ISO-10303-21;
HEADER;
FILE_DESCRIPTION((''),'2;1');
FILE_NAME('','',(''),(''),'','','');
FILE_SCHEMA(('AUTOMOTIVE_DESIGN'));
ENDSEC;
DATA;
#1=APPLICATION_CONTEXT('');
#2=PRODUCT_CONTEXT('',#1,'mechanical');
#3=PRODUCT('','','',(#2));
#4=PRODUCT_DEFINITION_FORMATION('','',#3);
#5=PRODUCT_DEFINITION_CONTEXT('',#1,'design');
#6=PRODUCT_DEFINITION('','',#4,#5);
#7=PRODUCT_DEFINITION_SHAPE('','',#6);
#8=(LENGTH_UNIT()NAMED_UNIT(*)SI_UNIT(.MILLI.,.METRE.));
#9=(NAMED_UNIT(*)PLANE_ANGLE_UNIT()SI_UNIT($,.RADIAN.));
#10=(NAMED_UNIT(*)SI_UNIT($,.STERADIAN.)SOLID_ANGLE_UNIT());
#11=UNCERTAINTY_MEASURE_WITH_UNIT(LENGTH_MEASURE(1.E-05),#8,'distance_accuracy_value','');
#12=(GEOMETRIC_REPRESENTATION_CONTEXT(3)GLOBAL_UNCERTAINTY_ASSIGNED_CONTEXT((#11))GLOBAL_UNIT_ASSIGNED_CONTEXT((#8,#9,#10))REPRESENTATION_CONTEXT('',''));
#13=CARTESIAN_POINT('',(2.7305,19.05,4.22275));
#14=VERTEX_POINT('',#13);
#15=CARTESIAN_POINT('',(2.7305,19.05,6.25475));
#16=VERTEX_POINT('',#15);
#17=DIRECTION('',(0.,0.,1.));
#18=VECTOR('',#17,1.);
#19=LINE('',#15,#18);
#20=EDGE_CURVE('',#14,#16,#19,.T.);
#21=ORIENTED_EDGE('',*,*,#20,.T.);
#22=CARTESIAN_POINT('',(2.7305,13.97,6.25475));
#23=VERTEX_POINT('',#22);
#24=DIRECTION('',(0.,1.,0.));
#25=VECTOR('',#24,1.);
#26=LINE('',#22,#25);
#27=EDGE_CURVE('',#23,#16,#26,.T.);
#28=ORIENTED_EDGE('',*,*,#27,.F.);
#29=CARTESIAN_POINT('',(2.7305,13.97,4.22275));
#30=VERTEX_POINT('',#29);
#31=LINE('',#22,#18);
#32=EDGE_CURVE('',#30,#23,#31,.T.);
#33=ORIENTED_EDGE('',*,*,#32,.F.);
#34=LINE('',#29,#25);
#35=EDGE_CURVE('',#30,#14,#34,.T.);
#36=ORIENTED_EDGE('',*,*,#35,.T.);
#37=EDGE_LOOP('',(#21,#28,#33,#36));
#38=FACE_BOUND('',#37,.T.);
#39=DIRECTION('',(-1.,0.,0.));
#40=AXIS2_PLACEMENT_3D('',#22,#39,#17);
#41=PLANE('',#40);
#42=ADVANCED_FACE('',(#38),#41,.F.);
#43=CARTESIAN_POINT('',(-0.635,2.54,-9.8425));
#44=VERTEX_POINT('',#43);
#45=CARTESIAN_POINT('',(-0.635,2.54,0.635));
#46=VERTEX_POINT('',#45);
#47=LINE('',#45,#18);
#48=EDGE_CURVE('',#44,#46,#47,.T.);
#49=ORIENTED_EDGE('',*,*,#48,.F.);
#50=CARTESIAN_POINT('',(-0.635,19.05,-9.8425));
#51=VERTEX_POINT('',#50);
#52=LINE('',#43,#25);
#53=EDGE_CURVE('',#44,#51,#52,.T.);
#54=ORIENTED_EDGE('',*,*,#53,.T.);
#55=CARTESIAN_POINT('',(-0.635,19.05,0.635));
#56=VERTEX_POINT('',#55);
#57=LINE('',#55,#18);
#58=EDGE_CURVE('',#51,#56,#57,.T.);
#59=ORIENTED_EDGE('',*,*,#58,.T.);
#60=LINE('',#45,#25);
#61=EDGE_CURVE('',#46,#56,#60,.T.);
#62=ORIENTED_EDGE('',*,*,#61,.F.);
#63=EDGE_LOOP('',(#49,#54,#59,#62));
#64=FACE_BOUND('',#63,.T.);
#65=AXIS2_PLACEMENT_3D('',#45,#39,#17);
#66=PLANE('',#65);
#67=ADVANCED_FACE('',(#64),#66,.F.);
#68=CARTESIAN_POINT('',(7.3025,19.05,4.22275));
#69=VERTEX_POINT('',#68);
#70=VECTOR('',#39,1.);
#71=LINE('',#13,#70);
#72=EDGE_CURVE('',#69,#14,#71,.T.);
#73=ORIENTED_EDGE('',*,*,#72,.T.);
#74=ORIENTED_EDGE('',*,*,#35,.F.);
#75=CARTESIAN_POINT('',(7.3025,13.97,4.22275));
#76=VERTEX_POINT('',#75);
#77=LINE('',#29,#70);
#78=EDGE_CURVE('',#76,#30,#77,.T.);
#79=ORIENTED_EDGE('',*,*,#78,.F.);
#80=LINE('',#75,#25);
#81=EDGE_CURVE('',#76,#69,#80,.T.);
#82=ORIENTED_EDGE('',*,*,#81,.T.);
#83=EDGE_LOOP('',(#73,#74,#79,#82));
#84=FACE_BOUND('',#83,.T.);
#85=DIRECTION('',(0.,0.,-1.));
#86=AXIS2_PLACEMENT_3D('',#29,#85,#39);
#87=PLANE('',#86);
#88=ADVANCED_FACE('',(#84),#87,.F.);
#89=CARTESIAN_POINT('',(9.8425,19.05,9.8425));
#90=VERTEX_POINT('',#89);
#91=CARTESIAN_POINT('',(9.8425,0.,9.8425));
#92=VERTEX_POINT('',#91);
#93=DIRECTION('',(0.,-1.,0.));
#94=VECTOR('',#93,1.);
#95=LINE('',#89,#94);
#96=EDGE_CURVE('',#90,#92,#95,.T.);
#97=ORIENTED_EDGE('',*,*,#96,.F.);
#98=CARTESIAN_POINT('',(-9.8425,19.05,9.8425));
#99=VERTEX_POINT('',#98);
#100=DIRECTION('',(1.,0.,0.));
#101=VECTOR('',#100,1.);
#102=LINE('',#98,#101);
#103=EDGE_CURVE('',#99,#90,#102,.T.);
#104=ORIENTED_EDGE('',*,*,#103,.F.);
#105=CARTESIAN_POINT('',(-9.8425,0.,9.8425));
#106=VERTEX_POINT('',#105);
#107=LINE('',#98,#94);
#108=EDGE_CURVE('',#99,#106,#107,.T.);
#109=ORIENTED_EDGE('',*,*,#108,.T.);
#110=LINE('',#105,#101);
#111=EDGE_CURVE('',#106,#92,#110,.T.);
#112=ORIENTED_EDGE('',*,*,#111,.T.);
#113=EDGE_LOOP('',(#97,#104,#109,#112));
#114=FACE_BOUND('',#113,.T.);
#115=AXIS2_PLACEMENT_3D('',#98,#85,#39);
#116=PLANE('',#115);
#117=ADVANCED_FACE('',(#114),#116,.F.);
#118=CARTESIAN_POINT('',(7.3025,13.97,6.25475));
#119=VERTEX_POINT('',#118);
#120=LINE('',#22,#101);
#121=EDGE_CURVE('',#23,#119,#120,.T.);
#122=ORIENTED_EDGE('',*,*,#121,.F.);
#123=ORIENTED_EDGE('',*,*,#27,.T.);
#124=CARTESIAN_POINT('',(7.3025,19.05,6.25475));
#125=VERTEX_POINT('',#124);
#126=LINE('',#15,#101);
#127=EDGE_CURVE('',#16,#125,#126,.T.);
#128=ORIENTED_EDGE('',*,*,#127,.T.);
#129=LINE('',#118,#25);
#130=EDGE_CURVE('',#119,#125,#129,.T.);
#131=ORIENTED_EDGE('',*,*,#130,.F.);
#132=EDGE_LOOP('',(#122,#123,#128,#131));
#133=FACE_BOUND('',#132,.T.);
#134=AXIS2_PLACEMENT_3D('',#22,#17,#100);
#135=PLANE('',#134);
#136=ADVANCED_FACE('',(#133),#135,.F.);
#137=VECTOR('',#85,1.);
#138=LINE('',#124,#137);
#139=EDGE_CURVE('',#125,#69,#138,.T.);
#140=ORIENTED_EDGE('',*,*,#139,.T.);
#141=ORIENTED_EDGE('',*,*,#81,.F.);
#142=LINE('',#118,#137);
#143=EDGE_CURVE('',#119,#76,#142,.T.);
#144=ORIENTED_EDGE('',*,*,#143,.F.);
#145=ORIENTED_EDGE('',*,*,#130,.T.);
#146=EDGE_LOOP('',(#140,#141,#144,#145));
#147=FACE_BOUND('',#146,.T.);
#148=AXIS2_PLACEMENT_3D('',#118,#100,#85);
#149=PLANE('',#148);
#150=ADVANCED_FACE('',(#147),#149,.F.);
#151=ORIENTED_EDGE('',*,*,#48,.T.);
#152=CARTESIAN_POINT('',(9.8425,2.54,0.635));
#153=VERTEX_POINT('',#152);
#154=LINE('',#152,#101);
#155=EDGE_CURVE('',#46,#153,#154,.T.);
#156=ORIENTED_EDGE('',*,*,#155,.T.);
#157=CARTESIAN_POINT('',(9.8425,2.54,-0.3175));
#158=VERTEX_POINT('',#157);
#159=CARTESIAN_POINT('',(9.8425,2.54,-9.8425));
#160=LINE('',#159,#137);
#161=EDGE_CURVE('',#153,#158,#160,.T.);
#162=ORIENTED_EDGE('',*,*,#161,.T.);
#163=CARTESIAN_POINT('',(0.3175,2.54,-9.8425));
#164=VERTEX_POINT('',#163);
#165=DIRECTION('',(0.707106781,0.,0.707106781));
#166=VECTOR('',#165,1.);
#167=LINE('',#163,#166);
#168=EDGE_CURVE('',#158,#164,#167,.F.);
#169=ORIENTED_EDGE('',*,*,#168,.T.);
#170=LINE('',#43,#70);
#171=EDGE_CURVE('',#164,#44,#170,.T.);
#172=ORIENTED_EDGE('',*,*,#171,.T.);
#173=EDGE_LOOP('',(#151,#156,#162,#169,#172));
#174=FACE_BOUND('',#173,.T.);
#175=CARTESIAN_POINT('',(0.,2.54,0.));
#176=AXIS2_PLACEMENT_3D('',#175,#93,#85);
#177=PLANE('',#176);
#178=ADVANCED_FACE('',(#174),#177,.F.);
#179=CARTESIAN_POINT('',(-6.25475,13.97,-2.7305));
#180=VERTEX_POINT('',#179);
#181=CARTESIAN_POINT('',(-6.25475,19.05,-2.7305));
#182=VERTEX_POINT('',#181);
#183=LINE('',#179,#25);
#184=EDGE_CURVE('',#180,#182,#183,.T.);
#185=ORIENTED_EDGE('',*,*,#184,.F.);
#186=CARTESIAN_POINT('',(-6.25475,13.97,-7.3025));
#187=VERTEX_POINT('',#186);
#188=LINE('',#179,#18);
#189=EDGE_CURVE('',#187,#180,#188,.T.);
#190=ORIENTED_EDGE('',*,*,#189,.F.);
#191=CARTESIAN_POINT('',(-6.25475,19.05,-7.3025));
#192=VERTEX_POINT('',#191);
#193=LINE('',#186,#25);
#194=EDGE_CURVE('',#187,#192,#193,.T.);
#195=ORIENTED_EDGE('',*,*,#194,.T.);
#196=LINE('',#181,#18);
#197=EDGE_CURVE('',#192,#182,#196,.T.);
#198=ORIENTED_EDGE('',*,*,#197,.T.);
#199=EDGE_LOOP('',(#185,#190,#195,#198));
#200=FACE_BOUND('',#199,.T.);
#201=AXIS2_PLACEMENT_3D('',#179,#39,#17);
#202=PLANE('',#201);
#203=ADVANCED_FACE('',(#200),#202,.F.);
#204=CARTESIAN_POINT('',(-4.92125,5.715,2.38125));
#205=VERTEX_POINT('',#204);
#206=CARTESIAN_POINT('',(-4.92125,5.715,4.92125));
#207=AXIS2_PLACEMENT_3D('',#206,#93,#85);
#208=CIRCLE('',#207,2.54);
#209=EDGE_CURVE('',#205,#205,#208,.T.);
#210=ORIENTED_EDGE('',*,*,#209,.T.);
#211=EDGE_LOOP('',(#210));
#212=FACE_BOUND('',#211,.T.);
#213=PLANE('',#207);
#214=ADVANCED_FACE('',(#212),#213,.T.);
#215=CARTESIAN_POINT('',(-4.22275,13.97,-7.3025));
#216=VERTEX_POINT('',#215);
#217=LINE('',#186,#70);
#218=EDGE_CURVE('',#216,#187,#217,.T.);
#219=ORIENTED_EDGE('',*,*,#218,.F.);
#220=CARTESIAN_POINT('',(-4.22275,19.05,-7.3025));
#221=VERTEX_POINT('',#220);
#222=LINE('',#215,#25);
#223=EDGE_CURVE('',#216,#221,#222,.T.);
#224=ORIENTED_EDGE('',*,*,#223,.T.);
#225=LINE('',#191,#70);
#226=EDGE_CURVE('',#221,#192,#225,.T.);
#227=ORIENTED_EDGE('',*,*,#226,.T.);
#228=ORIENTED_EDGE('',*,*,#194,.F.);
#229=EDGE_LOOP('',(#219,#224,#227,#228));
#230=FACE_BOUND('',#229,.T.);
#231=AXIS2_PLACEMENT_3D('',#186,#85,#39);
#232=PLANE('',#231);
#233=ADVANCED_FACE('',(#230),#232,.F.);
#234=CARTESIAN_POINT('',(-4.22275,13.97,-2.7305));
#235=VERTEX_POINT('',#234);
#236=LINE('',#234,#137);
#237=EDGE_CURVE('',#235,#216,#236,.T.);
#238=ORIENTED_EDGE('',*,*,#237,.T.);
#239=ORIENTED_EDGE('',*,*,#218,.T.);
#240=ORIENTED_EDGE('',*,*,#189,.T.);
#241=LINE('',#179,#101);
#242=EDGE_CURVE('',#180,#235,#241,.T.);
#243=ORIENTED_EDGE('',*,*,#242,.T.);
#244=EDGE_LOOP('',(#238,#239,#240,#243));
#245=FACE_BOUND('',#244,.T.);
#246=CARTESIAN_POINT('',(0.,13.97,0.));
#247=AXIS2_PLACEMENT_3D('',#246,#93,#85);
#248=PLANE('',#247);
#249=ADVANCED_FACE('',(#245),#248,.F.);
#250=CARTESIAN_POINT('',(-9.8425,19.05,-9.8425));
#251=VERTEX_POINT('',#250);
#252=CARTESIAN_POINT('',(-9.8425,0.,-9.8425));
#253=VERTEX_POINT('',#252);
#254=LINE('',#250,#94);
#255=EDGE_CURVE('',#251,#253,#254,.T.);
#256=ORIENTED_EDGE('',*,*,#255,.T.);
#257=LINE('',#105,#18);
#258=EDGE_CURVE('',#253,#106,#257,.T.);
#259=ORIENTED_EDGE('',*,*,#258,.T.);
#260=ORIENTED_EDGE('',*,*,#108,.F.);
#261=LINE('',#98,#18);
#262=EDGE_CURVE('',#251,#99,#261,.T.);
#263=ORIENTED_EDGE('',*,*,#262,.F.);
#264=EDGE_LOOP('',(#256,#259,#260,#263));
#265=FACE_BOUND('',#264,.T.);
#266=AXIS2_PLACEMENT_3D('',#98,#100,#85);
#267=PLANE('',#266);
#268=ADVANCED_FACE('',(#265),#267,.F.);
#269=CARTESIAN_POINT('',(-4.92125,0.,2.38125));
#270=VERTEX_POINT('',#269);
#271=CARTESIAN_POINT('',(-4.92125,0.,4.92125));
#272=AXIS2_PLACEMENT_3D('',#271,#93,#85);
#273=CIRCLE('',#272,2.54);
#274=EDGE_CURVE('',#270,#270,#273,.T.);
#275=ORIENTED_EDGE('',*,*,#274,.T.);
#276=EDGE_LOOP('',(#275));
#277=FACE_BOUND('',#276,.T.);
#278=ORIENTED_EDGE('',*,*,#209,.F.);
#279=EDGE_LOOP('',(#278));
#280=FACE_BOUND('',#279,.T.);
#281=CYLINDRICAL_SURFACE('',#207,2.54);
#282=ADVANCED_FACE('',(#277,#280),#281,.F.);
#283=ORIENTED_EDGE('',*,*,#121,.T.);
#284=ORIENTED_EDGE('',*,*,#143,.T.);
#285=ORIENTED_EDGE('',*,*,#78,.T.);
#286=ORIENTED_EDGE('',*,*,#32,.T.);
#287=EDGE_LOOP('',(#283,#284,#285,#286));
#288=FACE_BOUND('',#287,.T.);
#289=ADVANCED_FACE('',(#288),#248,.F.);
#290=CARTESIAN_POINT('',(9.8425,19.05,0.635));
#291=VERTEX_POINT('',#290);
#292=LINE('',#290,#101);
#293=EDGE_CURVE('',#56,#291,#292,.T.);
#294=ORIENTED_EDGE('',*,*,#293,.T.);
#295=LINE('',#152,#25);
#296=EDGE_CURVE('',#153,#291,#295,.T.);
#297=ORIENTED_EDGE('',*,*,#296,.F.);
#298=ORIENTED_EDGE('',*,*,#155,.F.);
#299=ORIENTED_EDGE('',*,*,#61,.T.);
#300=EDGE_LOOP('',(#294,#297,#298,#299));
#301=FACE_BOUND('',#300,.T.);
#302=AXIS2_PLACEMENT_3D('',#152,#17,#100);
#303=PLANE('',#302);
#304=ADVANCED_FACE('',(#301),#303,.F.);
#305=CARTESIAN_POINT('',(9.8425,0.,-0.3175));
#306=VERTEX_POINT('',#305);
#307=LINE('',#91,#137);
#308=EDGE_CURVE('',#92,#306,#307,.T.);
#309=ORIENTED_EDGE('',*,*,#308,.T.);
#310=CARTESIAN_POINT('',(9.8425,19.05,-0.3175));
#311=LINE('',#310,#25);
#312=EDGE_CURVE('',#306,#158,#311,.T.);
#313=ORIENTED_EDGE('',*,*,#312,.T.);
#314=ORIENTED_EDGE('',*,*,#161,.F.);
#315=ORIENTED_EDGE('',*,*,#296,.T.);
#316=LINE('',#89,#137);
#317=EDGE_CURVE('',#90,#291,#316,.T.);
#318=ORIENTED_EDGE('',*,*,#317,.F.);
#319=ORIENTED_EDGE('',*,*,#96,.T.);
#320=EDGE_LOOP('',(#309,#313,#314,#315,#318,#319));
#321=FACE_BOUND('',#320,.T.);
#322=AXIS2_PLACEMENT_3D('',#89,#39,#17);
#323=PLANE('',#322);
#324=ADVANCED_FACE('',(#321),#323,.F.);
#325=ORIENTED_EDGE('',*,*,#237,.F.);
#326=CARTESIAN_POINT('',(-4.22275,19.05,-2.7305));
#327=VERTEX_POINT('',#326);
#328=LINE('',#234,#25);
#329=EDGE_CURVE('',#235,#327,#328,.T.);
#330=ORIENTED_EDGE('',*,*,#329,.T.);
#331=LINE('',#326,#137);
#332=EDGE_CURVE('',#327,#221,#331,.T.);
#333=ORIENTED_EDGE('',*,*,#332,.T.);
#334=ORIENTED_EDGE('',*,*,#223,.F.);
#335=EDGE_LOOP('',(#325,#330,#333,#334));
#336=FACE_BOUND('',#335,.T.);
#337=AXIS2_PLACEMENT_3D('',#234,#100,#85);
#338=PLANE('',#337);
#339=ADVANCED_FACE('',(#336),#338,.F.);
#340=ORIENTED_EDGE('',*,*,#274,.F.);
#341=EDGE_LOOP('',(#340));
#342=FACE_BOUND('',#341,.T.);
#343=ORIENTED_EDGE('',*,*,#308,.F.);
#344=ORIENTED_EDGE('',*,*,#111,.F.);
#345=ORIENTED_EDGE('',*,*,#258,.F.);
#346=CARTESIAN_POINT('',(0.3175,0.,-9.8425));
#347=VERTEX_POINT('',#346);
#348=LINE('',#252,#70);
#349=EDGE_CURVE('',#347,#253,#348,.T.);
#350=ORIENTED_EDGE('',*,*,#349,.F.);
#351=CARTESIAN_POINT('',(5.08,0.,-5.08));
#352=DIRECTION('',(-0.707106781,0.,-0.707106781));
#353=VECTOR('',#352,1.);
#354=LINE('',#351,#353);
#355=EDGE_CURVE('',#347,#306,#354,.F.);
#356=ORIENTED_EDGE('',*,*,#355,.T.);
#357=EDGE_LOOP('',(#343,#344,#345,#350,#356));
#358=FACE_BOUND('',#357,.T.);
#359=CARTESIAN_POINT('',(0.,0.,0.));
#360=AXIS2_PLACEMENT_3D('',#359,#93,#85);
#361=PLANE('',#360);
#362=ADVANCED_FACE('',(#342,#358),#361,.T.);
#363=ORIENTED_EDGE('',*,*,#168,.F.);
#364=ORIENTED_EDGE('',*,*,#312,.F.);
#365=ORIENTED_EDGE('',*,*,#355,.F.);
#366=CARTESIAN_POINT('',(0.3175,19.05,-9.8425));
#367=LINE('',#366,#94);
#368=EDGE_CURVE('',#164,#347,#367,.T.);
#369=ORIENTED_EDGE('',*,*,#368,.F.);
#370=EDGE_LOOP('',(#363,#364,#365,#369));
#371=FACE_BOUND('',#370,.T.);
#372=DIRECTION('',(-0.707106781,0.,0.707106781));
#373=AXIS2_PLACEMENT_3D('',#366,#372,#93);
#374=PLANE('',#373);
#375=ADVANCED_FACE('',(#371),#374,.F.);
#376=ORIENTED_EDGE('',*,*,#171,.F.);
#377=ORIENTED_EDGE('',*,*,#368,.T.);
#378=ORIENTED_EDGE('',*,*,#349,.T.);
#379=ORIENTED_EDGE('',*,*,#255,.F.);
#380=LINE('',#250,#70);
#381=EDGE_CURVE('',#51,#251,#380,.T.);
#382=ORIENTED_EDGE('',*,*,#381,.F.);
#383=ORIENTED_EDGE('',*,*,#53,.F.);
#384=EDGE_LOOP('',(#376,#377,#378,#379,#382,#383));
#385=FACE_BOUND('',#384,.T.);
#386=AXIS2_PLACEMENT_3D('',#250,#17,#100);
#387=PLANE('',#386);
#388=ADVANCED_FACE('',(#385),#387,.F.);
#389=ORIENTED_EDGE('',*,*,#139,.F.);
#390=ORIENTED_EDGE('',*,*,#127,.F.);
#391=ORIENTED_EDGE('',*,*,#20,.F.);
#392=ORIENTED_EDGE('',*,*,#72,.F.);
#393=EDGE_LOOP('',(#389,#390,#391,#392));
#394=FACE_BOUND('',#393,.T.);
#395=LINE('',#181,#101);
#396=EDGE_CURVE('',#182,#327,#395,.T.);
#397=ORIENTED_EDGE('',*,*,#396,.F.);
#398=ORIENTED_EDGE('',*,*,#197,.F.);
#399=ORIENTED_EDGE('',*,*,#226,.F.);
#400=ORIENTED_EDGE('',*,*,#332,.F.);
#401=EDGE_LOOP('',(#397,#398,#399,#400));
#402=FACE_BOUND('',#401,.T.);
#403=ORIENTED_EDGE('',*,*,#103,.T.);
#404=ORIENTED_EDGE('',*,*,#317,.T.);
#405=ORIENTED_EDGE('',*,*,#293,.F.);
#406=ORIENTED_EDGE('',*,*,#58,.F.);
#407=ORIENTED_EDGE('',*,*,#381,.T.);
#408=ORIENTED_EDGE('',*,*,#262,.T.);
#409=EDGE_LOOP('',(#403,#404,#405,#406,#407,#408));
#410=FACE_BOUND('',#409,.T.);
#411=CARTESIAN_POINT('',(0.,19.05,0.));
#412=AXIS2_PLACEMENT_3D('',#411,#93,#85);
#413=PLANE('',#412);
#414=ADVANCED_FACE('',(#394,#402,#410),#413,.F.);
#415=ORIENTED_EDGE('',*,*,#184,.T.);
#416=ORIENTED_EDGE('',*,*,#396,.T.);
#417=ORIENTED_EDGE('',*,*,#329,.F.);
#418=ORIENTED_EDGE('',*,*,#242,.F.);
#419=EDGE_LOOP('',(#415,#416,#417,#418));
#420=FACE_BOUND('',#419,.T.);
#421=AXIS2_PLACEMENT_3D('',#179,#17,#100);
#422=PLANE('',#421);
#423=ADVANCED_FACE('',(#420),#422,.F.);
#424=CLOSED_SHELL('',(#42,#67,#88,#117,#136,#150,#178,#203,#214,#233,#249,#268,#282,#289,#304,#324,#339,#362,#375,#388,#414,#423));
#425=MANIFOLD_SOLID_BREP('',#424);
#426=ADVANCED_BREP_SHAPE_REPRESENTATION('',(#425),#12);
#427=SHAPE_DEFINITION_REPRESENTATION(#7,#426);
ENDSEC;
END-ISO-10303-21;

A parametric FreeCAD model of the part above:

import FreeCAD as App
import Part
import Sketcher
Q = App.Units.Quantity


def edges_at(feature, points):
    """Names of the edges that pass closest to the given points."""
    edges = feature.Shape.Edges
    near = lambda p: min(range(len(edges)), key=lambda i: edges[i].distToShape(Part.Vertex(*p))[0])
    return sorted({f"Edge{near(p) + 1}" for p in points})

doc = App.newDocument("Part")
body = doc.addObject("PartDesign::Body", "Body")

# Sketch on XZ plane
sketch1 = body.newObject("Sketcher::SketchObject", "Sketch")
sketch1.AttachmentSupport = (doc.getObject("XZ_Plane"), [""])
sketch1.MapMode = "FlatFace"
sketch1.addGeometry(Part.LineSegment(App.Vector(-10, -10, 0), App.Vector(-10, 10, 0)), False)
sketch1.addGeometry(Part.LineSegment(App.Vector(-10, 10, 0), App.Vector(10, 10, 0)), False)
sketch1.addGeometry(Part.LineSegment(App.Vector(10, 10, 0), App.Vector(10, -10, 0)), False)
sketch1.addGeometry(Part.LineSegment(App.Vector(10, -10, 0), App.Vector(-10, -10, 0)), False)
sketch1.addConstraint(Sketcher.Constraint("Coincident", 0, 2, 1, 1))
sketch1.addConstraint(Sketcher.Constraint("Coincident", 1, 2, 2, 1))
sketch1.addConstraint(Sketcher.Constraint("Coincident", 2, 2, 3, 1))
sketch1.addConstraint(Sketcher.Constraint("Coincident", 3, 2, 0, 1))
sketch1.addConstraint(Sketcher.Constraint("Vertical", 0))
sketch1.addConstraint(Sketcher.Constraint("Horizontal", 1))
sketch1.addConstraint(Sketcher.Constraint("Vertical", 2))
sketch1.addConstraint(Sketcher.Constraint("Horizontal", 3))
sketch1.addConstraint(Sketcher.Constraint("Symmetric", 0, 2, 2, 2, -1, 1))
sketch1.addConstraint(Sketcher.Constraint("Equal", 3, 0))
sketch1.addConstraint(Sketcher.Constraint("DistanceX", 1, 1, 1, 2, Q("0.775 in")))
pad1 = body.newObject("PartDesign::Pad", "Pad")
pad1.Profile = sketch1
pad1.Length = Q("0.75 in")
pad1.Reversed = True

# Sketch on XZ plane
sketch2 = body.newObject("Sketcher::SketchObject", "Sketch001")
sketch2.AttachmentSupport = (doc.getObject("XZ_Plane"), [""])
sketch2.MapMode = "FlatFace"
sketch2.addGeometry(Part.Circle(App.Vector(-4.9, 4.9, 0), App.Vector(0, 0, 1), 2.5), False)
sketch2.addConstraint(Sketcher.Constraint("Diameter", 0, Q("0.2 in")))
sketch2.addConstraint(Sketcher.Constraint("DistanceX", 0, 3, -1, 1, 4.92125))
sketch2.addConstraint(Sketcher.Constraint("DistanceY", -1, 1, 0, 3, 4.92125))
pocket1 = body.newObject("PartDesign::Pocket", "Pocket")
pocket1.Profile = sketch2
pocket1.Length = Q("0.225 in")

# Sketch on XZ plane
sketch3 = body.newObject("Sketcher::SketchObject", "Sketch002")
sketch3.AttachmentSupport = (doc.getObject("XZ_Plane"), [""])
sketch3.MapMode = "FlatFace"
sketch3.AttachmentOffset = App.Placement(App.Vector(0, 0, -0.75 * 25.4), App.Rotation())
sketch3.addGeometry(Part.LineSegment(App.Vector(-1, -10, 0), App.Vector(-1, 1, 0)), False)
sketch3.addGeometry(Part.LineSegment(App.Vector(-1, 1, 0), App.Vector(10, 1, 0)), False)
sketch3.addGeometry(Part.LineSegment(App.Vector(10, 1, 0), App.Vector(10, -10, 0)), False)
sketch3.addGeometry(Part.LineSegment(App.Vector(10, -10, 0), App.Vector(-1, -10, 0)), False)
sketch3.addConstraint(Sketcher.Constraint("Coincident", 0, 2, 1, 1))
sketch3.addConstraint(Sketcher.Constraint("Coincident", 1, 2, 2, 1))
sketch3.addConstraint(Sketcher.Constraint("Coincident", 2, 2, 3, 1))
sketch3.addConstraint(Sketcher.Constraint("Coincident", 3, 2, 0, 1))
sketch3.addConstraint(Sketcher.Constraint("Vertical", 0))
sketch3.addConstraint(Sketcher.Constraint("Horizontal", 1))
sketch3.addConstraint(Sketcher.Constraint("Vertical", 2))
sketch3.addConstraint(Sketcher.Constraint("Horizontal", 3))
sketch3.addConstraint(Sketcher.Constraint("Equal", 3, 0))
sketch3.addConstraint(Sketcher.Constraint("DistanceX", 1, 1, 1, 2, Q("0.4125 in")))
sketch3.addConstraint(Sketcher.Constraint("DistanceX", 0, 2, -1, 1, Q("0.025 in")))
sketch3.addConstraint(Sketcher.Constraint("DistanceY", -1, 1, 0, 2, Q("0.025 in")))
pocket2 = body.newObject("PartDesign::Pocket", "Pocket001")
pocket2.Profile = sketch3
pocket2.Length = Q("0.65 in")
pocket2.Reversed = True

# Sketch on XZ plane
sketch4 = body.newObject("Sketcher::SketchObject", "Sketch003")
sketch4.AttachmentSupport = (doc.getObject("XZ_Plane"), [""])
sketch4.MapMode = "FlatFace"
sketch4.AttachmentOffset = App.Placement(App.Vector(0, 0, -0.75 * 25.4), App.Rotation())
sketch4.addGeometry(Part.LineSegment(App.Vector(-6.3, -7.3, 0), App.Vector(-6.3, -2.7, 0)), False)
sketch4.addGeometry(Part.LineSegment(App.Vector(-6.3, -2.7, 0), App.Vector(-4.2, -2.7, 0)), False)
sketch4.addGeometry(Part.LineSegment(App.Vector(-4.2, -2.7, 0), App.Vector(-4.2, -7.3, 0)), False)
sketch4.addGeometry(Part.LineSegment(App.Vector(-4.2, -7.3, 0), App.Vector(-6.3, -7.3, 0)), False)
sketch4.addGeometry(Part.LineSegment(App.Vector(2.7, 4.2, 0), App.Vector(2.7, 6.3, 0)), False)
sketch4.addGeometry(Part.LineSegment(App.Vector(2.7, 6.3, 0), App.Vector(7.3, 6.3, 0)), False)
sketch4.addGeometry(Part.LineSegment(App.Vector(7.3, 6.3, 0), App.Vector(7.3, 4.2, 0)), False)
sketch4.addGeometry(Part.LineSegment(App.Vector(7.3, 4.2, 0), App.Vector(2.7, 4.2, 0)), False)
sketch4.addConstraint(Sketcher.Constraint("Coincident", 0, 2, 1, 1))
sketch4.addConstraint(Sketcher.Constraint("Coincident", 1, 2, 2, 1))
sketch4.addConstraint(Sketcher.Constraint("Coincident", 2, 2, 3, 1))
sketch4.addConstraint(Sketcher.Constraint("Coincident", 3, 2, 0, 1))
sketch4.addConstraint(Sketcher.Constraint("Coincident", 4, 2, 5, 1))
sketch4.addConstraint(Sketcher.Constraint("Coincident", 5, 2, 6, 1))
sketch4.addConstraint(Sketcher.Constraint("Coincident", 6, 2, 7, 1))
sketch4.addConstraint(Sketcher.Constraint("Coincident", 7, 2, 4, 1))
sketch4.addConstraint(Sketcher.Constraint("Vertical", 0))
sketch4.addConstraint(Sketcher.Constraint("Horizontal", 1))
sketch4.addConstraint(Sketcher.Constraint("Vertical", 2))
sketch4.addConstraint(Sketcher.Constraint("Horizontal", 3))
sketch4.addConstraint(Sketcher.Constraint("Vertical", 4))
sketch4.addConstraint(Sketcher.Constraint("Horizontal", 5))
sketch4.addConstraint(Sketcher.Constraint("Vertical", 6))
sketch4.addConstraint(Sketcher.Constraint("Horizontal", 7))
sketch4.addConstraint(Sketcher.Constraint("Equal", 7, 0))
sketch4.addConstraint(Sketcher.Constraint("Equal", 3, 4))
sketch4.addConstraint(Sketcher.Constraint("DistanceX", 1, 1, 1, 2, Q("0.08 in")))
sketch4.addConstraint(Sketcher.Constraint("DistanceX", 5, 1, 5, 2, Q("0.18 in")))
sketch4.addConstraint(Sketcher.Constraint("DistanceY", 0, 2, -1, 1, Q("0.1075 in")))
sketch4.addConstraint(Sketcher.Constraint("DistanceX", -1, 1, 4, 2, Q("0.1075 in")))
sketch4.addConstraint(Sketcher.Constraint("DistanceX", 0, 2, -1, 1, 6.25475))
sketch4.addConstraint(Sketcher.Constraint("DistanceY", -1, 1, 4, 2, 6.25475))
pocket3 = body.newObject("PartDesign::Pocket", "Pocket002")
pocket3.Profile = sketch4
pocket3.Length = Q("0.2 in")
pocket3.Reversed = True
doc.recompute()

chamfer = body.newObject("PartDesign::Chamfer", "Chamfer")
chamfer.Base = (pocket3, edges_at(pocket3, [(9.842, 1.27, -9.842)]))
chamfer.Size = Q("0.375 in")

doc.recompute()
